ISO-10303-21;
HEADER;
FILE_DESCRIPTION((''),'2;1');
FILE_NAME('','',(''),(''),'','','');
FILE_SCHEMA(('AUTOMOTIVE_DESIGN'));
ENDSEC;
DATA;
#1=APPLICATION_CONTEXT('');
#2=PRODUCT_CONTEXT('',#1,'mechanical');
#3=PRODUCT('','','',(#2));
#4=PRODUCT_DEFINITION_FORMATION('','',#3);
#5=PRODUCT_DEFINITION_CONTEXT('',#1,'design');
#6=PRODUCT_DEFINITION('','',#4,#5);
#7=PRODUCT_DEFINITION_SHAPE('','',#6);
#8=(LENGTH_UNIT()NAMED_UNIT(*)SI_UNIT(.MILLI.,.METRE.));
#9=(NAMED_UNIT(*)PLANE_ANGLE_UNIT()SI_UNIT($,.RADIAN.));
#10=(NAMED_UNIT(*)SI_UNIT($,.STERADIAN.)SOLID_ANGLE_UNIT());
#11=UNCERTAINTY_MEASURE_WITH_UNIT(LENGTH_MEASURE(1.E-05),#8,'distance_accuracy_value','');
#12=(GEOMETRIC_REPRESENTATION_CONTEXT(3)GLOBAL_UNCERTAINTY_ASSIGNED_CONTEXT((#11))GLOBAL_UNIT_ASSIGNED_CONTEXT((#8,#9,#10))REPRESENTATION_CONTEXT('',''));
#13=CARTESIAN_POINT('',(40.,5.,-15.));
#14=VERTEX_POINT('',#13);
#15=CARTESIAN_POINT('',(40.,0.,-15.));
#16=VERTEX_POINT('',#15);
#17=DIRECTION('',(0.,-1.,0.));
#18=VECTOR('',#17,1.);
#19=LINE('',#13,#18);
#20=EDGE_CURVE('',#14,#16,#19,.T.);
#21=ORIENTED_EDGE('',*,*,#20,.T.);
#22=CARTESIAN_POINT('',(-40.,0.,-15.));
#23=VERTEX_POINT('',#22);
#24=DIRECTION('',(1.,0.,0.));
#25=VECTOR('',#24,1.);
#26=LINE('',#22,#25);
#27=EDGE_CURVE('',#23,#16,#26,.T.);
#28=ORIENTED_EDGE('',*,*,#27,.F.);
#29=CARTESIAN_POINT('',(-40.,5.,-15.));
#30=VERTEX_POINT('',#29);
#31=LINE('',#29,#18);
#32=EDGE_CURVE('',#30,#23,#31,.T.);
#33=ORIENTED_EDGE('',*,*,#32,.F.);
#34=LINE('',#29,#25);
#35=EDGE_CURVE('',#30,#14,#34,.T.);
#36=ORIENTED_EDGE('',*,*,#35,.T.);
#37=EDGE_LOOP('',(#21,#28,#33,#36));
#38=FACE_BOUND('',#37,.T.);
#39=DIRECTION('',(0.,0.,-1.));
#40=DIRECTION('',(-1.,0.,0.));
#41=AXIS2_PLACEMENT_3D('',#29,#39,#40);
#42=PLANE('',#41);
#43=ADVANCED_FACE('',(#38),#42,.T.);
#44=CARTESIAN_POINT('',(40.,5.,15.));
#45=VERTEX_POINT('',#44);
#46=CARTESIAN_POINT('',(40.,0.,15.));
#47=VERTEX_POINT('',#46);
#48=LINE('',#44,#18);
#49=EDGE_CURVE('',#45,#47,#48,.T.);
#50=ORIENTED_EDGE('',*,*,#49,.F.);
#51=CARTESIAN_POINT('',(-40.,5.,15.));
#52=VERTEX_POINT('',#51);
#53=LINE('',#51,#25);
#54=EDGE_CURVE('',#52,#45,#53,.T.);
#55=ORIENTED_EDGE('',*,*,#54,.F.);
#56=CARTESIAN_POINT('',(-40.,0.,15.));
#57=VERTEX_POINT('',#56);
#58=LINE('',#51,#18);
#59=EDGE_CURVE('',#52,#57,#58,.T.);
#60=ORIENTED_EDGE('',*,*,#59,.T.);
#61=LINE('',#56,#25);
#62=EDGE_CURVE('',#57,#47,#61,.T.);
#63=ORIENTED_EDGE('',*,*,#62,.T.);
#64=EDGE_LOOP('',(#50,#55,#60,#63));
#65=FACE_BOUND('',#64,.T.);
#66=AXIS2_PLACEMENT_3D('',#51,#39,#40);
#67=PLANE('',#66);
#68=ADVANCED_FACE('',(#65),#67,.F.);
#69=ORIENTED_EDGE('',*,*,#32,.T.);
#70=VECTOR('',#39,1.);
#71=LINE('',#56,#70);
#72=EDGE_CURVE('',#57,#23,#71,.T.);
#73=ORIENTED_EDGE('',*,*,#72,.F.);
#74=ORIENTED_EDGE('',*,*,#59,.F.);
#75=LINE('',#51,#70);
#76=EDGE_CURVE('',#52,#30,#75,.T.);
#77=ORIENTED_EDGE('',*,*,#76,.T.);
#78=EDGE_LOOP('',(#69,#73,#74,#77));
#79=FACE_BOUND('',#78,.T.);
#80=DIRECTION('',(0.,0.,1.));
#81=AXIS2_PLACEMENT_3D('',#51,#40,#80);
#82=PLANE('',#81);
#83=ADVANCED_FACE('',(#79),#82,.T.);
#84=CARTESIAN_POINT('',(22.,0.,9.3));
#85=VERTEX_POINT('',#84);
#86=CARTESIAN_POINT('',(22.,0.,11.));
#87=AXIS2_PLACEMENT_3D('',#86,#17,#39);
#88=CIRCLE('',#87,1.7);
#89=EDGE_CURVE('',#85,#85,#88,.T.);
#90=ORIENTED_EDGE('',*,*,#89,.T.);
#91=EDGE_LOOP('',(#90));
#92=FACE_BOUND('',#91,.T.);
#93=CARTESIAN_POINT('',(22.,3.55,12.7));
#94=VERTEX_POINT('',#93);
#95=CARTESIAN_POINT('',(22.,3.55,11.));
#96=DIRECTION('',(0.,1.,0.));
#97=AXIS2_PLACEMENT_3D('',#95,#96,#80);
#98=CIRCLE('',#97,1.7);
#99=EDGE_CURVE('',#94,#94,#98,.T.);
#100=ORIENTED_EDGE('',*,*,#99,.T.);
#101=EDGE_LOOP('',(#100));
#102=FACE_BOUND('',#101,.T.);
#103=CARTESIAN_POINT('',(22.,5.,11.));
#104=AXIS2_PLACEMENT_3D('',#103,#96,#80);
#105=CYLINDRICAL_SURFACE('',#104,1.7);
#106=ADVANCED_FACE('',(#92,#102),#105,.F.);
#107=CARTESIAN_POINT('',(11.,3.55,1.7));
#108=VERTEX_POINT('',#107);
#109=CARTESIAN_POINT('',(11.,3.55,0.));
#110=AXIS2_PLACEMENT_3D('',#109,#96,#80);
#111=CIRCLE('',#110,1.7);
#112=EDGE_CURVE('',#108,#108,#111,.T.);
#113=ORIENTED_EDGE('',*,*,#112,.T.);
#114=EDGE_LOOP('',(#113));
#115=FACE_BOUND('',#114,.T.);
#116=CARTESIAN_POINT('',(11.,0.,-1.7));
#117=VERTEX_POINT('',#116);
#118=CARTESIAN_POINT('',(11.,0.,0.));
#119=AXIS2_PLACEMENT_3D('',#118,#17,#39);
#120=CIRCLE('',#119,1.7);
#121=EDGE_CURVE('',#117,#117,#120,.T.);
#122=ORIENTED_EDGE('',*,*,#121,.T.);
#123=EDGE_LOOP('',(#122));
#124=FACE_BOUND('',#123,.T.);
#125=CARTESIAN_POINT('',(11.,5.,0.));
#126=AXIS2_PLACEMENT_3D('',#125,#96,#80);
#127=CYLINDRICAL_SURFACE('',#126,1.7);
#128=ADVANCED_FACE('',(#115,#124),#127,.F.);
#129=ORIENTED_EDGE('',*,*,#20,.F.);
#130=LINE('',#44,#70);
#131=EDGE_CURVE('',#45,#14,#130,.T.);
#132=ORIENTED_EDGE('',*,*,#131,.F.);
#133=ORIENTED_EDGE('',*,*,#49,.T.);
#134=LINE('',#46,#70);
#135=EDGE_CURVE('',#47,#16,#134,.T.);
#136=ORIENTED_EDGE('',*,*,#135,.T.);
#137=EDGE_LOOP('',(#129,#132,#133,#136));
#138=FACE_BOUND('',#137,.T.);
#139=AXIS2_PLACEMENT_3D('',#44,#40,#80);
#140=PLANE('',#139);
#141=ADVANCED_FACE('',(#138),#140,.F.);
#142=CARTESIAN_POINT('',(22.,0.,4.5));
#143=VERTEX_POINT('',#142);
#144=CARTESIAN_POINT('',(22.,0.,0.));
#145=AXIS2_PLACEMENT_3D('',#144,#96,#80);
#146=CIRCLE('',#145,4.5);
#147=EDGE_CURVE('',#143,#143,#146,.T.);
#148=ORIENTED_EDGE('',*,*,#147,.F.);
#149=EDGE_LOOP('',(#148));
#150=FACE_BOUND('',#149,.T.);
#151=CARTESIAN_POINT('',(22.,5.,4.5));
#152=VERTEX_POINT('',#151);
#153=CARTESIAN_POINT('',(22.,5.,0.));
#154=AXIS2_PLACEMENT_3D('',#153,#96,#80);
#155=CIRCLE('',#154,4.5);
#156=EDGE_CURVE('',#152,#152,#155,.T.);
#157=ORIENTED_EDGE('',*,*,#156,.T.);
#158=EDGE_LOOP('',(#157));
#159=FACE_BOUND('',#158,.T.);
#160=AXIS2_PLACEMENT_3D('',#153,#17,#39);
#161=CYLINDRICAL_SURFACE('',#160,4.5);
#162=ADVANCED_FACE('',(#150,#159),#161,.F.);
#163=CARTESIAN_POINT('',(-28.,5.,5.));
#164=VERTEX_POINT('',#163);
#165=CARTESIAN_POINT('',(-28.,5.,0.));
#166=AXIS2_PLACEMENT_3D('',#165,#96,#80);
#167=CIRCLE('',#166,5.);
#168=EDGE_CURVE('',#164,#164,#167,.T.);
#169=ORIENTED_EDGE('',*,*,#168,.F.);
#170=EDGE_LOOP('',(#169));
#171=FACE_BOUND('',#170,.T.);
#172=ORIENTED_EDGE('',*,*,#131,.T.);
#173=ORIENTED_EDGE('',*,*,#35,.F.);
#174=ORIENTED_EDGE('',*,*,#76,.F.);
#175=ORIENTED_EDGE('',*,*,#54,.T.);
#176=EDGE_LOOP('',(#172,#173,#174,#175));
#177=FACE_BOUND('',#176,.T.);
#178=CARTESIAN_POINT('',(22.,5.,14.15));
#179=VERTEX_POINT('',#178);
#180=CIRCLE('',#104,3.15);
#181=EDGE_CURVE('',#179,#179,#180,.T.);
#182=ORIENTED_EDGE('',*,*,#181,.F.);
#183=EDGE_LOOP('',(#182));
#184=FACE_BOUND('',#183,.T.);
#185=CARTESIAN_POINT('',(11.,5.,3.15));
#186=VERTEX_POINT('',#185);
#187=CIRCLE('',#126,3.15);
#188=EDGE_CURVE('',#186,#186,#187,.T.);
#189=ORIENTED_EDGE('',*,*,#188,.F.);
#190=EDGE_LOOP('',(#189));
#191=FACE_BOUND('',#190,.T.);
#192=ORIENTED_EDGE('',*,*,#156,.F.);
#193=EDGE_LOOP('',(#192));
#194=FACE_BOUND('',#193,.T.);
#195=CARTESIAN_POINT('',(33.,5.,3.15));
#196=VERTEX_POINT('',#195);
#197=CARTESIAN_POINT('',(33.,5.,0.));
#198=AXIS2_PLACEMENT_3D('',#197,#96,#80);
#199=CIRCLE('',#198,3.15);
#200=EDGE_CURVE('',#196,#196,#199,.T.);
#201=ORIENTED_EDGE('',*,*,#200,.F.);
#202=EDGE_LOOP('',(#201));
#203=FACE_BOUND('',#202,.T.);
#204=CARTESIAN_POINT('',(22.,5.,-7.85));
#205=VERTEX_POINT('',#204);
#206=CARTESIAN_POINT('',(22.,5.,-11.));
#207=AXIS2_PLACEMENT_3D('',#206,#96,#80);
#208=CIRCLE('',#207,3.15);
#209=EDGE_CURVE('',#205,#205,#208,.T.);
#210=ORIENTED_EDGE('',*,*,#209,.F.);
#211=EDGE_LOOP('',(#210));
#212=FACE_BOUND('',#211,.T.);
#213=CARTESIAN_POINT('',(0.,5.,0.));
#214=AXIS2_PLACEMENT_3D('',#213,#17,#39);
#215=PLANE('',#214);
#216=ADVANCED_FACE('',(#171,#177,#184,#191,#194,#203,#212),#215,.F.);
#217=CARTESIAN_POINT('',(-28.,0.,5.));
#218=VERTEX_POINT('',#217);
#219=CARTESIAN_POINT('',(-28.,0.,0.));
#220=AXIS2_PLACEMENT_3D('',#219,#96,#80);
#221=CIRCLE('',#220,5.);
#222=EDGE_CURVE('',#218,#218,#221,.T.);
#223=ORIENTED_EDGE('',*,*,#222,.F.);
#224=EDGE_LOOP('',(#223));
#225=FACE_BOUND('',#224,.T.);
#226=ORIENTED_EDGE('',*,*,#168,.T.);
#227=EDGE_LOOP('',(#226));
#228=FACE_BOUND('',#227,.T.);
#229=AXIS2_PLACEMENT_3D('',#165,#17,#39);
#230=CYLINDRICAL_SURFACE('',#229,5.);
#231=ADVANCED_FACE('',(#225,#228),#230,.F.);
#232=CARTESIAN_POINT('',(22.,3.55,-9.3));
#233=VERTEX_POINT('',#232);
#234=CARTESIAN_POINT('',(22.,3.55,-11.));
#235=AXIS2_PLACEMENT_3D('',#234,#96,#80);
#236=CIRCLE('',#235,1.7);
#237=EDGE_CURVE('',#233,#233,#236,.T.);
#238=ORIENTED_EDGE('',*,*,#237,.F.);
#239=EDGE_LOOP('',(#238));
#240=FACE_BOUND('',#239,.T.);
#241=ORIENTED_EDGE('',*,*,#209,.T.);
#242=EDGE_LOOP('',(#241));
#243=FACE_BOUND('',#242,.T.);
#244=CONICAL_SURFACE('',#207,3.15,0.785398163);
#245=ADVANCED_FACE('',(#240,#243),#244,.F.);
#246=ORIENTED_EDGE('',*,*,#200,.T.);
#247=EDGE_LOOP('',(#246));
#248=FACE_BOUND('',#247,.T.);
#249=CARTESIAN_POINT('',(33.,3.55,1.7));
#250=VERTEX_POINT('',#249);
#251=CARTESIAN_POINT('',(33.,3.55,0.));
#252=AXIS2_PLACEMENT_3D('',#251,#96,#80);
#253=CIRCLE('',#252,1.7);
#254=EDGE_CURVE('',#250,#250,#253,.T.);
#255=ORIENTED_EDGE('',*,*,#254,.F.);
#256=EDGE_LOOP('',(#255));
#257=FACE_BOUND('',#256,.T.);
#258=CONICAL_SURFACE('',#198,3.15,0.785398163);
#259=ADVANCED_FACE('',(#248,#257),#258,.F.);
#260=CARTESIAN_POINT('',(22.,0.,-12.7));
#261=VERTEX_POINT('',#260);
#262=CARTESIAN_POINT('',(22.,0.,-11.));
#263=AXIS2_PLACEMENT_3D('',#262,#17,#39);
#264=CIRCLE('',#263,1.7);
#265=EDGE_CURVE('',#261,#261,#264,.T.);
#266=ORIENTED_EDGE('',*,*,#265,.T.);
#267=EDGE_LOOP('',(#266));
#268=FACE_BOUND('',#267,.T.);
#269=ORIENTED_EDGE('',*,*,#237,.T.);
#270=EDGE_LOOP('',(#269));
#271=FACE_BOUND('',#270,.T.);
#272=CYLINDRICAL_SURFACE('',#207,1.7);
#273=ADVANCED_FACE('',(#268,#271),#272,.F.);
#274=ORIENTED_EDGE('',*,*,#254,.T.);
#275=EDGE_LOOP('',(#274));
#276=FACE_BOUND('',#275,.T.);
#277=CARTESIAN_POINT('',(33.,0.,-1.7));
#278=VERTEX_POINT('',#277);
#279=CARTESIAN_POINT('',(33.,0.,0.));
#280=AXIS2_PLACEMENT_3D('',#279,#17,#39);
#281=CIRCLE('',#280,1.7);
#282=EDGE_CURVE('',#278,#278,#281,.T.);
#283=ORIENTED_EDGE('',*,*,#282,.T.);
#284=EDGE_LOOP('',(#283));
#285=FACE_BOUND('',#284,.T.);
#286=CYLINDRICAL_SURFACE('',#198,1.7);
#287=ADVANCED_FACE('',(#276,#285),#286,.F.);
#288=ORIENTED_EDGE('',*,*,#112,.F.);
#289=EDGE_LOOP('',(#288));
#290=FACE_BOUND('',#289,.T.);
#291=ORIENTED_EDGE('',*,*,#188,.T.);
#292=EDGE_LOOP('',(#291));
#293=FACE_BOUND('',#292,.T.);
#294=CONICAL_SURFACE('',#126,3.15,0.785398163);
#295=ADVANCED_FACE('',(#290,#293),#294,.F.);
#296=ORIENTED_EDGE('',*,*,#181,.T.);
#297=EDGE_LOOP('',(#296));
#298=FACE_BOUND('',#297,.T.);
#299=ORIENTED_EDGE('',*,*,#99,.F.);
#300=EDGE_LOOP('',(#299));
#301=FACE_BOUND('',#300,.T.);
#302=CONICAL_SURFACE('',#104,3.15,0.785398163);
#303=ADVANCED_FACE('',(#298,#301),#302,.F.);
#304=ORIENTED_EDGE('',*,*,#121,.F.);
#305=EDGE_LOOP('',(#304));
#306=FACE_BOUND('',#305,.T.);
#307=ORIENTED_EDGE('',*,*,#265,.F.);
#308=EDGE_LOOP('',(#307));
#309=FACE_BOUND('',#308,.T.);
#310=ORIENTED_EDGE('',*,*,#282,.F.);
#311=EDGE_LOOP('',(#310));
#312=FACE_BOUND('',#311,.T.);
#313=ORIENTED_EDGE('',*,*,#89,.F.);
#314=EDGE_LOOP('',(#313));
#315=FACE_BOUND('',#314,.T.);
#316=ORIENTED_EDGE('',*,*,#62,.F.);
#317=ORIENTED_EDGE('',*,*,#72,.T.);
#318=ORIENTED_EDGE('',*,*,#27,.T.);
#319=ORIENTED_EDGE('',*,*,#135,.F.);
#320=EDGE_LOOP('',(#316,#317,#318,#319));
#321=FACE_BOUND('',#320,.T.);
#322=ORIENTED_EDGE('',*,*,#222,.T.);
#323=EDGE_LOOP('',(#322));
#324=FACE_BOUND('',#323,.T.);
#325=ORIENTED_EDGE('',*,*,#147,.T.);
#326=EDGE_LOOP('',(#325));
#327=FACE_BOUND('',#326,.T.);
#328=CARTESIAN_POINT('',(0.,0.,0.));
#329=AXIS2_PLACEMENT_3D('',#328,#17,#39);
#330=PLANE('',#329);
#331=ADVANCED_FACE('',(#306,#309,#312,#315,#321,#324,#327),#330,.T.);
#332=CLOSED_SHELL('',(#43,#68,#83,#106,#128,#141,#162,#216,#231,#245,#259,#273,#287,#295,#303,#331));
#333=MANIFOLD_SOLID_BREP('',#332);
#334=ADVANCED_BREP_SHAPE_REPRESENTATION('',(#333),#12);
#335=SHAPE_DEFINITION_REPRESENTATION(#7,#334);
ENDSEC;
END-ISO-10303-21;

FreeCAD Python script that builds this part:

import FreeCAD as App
import Part
import Sketcher

V = App.Vector
Q = App.Units.Quantity


def add_polygon(sketch, points):
    """Adds a closed chain of lines whose ends are joined by coincident constraints."""
    first, n = sketch.GeometryCount, len(points)
    for a, b in zip(points, points[1:] + points[:1]):
        sketch.addGeometry(Part.LineSegment(App.Vector(*a, 0), App.Vector(*b, 0)), False)
    for i in range(n):
        sketch.addConstraint(Sketcher.Constraint("Coincident", first + i, 2, first + (i + 1) % n, 1))

doc = App.newDocument("Part")
params = doc.addObject("Spreadsheet::Sheet", "Params")
for row, (alias, value) in enumerate([
    ("sketch1_diameter", "10 mm"),
    ("sketch1_diameter2", "9 mm"),
    ("sketch1_width", "80 mm"),
    ("sketch1_height", "30 mm"),
    ("pad1_length", "5 mm"),
    ("sketch2_diameter", "3.4 mm"),
    ("hole_diameter", "3.4 mm"),
    ("hole_csink_diameter", "6.3 mm"),
], start=1):
    params.set(f"A{row}", alias)
    params.set(f"B{row}", "=" + value)
    params.setAlias(f"B{row}", alias)

body = doc.addObject("PartDesign::Body", "Body")

# Sketch on XZ plane
sketch1 = body.newObject("Sketcher::SketchObject", "Sketch")
sketch1.AttachmentSupport = (doc.getObject("XZ_Plane"), [""])
sketch1.MapMode = "FlatFace"
add_polygon(sketch1, [(-40, -15), (-40, 15), (40, 15), (40, -15)])  # lines 0-3
sketch1.addGeometry(Part.Circle(V(-28, 0, 0), V(0, 0, 1), 5), False)  # 4
sketch1.addGeometry(Part.Circle(V(22, 0, 0), V(0, 0, 1), 4.5), False)  # 5
sketch1.addConstraint([
    Sketcher.Constraint("Vertical", 0),
    Sketcher.Constraint("Horizontal", 1),
    Sketcher.Constraint("Vertical", 2),
    Sketcher.Constraint("Horizontal", 3),
    Sketcher.Constraint("Symmetric", 0, 2, 2, 2, -1, 1),
    Sketcher.Constraint("PointOnObject", 4, 3, -1),
    Sketcher.Constraint("PointOnObject", 5, 3, -1),
    Sketcher.Constraint("Diameter", 4, Q("10 mm")),
    Sketcher.Constraint("Diameter", 5, Q("9 mm")),
    Sketcher.Constraint("DistanceX", 1, 1, 1, 2, Q("80 mm")),
    Sketcher.Constraint("DistanceY", 0, 1, 0, 2, Q("30 mm")),
    Sketcher.Constraint("DistanceX", 4, 3, -1, 1, Q("28 mm")),
    Sketcher.Constraint("DistanceX", -1, 1, 5, 3, Q("22 mm")),
])
sketch1.setExpression("Constraints[11]", "Params.sketch1_diameter")
sketch1.setExpression("Constraints[12]", "Params.sketch1_diameter2")
sketch1.setExpression("Constraints[13]", "Params.sketch1_width")
sketch1.setExpression("Constraints[14]", "Params.sketch1_height")
pad1 = body.newObject("PartDesign::Pad", "Pad")
pad1.Profile = sketch1
pad1.setExpression("Length", "Params.pad1_length")
pad1.Reversed = True

# Sketch on XZ plane
sketch2 = body.newObject("Sketcher::SketchObject", "Sketch001")
sketch2.AttachmentSupport = (doc.getObject("XZ_Plane"), [""])
sketch2.MapMode = "FlatFace"
sketch2.AttachmentOffset = App.Placement(V(0, 0, -5), App.Rotation())
sketch2.addGeometry(Part.Circle(V(11, 0, 0), V(0, 0, 1), 1.7), False)
sketch2.addConstraint([
    Sketcher.Constraint("PointOnObject", 0, 3, -1),
    Sketcher.Constraint("Diameter", 0, Q("3.4 mm")),
    Sketcher.Constraint("DistanceX", -1, 1, 0, 3, Q("11 mm")),
])
sketch2.setExpression("Constraints[1]", "Params.sketch2_diameter")
doc.recompute()
hole = body.newObject("PartDesign::Hole", "Hole")
hole.Profile = sketch2
hole.ThreadType = "None"
hole.setExpression("Diameter", "Params.hole_diameter")
hole.DepthType = "ThroughAll"
hole.HoleCutType = "Countersink"
hole.setExpression("HoleCutDiameter", "Params.hole_csink_diameter")
hole.HoleCutCountersinkAngle = 90
hole.Reversed = True
doc.recompute()

datumline = body.newObject("PartDesign::Line", "DatumLine")
datumline.Placement = App.Placement(V(22, 0, 0), App.Rotation(V(0, 0, 1), V(0, 1, 0)))
polarpattern = body.newObject("PartDesign::PolarPattern", "PolarPattern")
polarpattern.Originals = [hole]
polarpattern.Axis = (datumline, [""])
polarpattern.Angle = 360
polarpattern.Occurrences = 4
body.Tip = polarpattern

doc.recompute()
